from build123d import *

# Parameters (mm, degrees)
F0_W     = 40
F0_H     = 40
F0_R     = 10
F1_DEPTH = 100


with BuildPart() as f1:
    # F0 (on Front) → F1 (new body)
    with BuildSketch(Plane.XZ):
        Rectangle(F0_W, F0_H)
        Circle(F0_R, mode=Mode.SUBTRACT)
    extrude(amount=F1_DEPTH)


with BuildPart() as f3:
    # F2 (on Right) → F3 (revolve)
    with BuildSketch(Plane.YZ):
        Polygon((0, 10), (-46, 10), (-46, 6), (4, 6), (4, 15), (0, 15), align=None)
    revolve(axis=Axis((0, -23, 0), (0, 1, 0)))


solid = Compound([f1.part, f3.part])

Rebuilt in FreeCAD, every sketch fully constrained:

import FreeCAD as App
import Part
import Sketcher


def add_polygon(sketch, points):
    """Adds a closed chain of lines whose ends are joined by coincident constraints."""
    first, n = sketch.GeometryCount, len(points)
    for a, b in zip(points, points[1:] + points[:1]):
        sketch.addGeometry(Part.LineSegment(App.Vector(*a, 0), App.Vector(*b, 0)), False)
    for i in range(n):
        sketch.addConstraint(Sketcher.Constraint("Coincident", first + i, 2, first + (i + 1) % n, 1))

doc = App.newDocument("Part")
body = doc.addObject("PartDesign::Body", "Body")

# Sketch on XZ plane
sketch1 = doc.addObject("Sketcher::SketchObject", "Sketch")
body.addObject(sketch1)
sketch1.AttachmentSupport = (doc.XZ_Plane, [""])
sketch1.MapMode = "FlatFace"
add_polygon(sketch1, [(-20, 20), (-20, -20), (20, -20), (20, 20)])  # lines 0-3
sketch1.addGeometry(Part.Circle(App.Vector(0, 0, 0), App.Vector(0, 0, 1), 10), False)  # 4
sketch1.addConstraint(Sketcher.Constraint("Vertical", 0))
sketch1.addConstraint(Sketcher.Constraint("Horizontal", 1))
sketch1.addConstraint(Sketcher.Constraint("Vertical", 2))
sketch1.addConstraint(Sketcher.Constraint("Horizontal", 3))
sketch1.addConstraint(Sketcher.Constraint("Coincident", 4, 3, -1, 1))
sketch1.addConstraint(Sketcher.Constraint("Symmetric", 0, 2, 2, 2, -1, 1))
sketch1.addConstraint(Sketcher.Constraint("Equal", 3, 0))
sketch1.addConstraint(Sketcher.Constraint("Diameter", 4, 20.0))
sketch1.addConstraint(Sketcher.Constraint("DistanceX", 1, 1, 1, 2, 40.0))
pad1 = doc.addObject("PartDesign::Pad", "Pad")
body.addObject(pad1)
pad1.Profile = sketch1
pad1.Length = 100
body2 = doc.addObject("PartDesign::Body", "Body001")

# Sketch on YZ plane
sketch2 = doc.addObject("Sketcher::SketchObject", "Sketch001")
body2.addObject(sketch2)
sketch2.AttachmentSupport = (doc.getObject("YZ_Plane001"), [""])
sketch2.MapMode = "FlatFace"
add_polygon(sketch2, [(0, 10), (-46, 10), (-46, 6), (4, 6), (4, 15), (0, 15)])  # lines 0-5
sketch2.addConstraint(Sketcher.Constraint("Horizontal", 0))
sketch2.addConstraint(Sketcher.Constraint("Vertical", 1))
sketch2.addConstraint(Sketcher.Constraint("Horizontal", 2))
sketch2.addConstraint(Sketcher.Constraint("Vertical", 3))
sketch2.addConstraint(Sketcher.Constraint("Horizontal", 4))
sketch2.addConstraint(Sketcher.Constraint("Vertical", 5))
sketch2.addConstraint(Sketcher.Constraint("PointOnObject", 4, 2, -2))
sketch2.addConstraint(Sketcher.Constraint("Equal", 4, 1))
sketch2.addConstraint(Sketcher.Constraint("DistanceX", 0, 2, 0, 1, 46.0))
sketch2.addConstraint(Sketcher.Constraint("DistanceX", 2, 1, 2, 2, 50.0))
sketch2.addConstraint(Sketcher.Constraint("DistanceY", 3, 1, 3, 2, 9.0))
sketch2.addConstraint(Sketcher.Constraint("DistanceY", -1, 1, 0, 2, 10.0))
revolution = doc.addObject("PartDesign::Revolution", "Revolution")
body2.addObject(revolution)
revolution.Profile = sketch2
revolution.ReferenceAxis = (sketch2, ["H_Axis"])
revolution.Angle = 360

doc.recompute()
